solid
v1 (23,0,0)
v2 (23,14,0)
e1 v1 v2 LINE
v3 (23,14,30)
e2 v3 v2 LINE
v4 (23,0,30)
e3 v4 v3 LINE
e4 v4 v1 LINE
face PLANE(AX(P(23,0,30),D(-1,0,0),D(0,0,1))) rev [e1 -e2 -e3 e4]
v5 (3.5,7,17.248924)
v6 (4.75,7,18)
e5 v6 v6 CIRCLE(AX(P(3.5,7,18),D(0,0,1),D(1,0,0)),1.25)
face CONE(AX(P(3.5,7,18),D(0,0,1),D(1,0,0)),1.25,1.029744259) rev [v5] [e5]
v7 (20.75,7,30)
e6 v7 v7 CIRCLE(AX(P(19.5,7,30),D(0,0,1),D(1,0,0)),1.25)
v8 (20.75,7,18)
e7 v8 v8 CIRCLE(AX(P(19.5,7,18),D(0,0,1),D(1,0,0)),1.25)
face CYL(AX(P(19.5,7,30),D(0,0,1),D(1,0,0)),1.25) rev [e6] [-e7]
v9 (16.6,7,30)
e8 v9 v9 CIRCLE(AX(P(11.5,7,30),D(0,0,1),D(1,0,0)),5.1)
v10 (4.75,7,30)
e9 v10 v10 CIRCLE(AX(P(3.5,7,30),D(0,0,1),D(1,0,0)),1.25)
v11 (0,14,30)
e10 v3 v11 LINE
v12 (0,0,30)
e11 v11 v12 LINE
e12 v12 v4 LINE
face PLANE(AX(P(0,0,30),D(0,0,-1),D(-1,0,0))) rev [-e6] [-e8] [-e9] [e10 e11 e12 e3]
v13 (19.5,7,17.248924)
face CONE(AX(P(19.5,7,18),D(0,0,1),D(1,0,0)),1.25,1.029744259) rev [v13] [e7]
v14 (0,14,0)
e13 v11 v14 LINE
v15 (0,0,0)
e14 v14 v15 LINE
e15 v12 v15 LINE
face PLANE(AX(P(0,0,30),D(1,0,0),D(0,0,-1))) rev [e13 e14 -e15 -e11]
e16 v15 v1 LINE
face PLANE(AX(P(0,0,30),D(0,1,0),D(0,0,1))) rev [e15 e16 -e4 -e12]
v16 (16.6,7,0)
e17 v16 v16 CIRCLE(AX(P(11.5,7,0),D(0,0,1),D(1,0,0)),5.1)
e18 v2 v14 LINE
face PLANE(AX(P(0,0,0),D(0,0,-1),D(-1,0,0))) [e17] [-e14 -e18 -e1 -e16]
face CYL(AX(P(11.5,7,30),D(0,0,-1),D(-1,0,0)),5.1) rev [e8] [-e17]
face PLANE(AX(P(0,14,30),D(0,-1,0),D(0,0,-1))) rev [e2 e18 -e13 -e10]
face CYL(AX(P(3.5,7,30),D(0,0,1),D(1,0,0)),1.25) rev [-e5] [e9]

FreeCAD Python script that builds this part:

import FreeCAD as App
import Part
import Sketcher

V = App.Vector
Q = App.Units.Quantity


def add_polygon(sketch, points):
    """Adds a closed chain of lines whose ends are joined by coincident constraints."""
    first, n = sketch.GeometryCount, len(points)
    for a, b in zip(points, points[1:] + points[:1]):
        sketch.addGeometry(Part.LineSegment(App.Vector(*a, 0), App.Vector(*b, 0)), False)
    for i in range(n):
        sketch.addConstraint(Sketcher.Constraint("Coincident", first + i, 2, first + (i + 1) % n, 1))

doc = App.newDocument("Part")
body = doc.addObject("PartDesign::Body", "Body")

sketch1 = doc.addObject("Sketcher::SketchObject", "Sketch")
body.addObject(sketch1)
sketch1.AttachmentSupport = (doc.XY_Plane, [""])
sketch1.MapMode = "FlatFace"
add_polygon(sketch1, [(0, 14), (0, 0), (23, 0), (23, 14)])
sketch1.addGeometry(Part.Circle(V(12, 7, 0), V(0, 0, 1), 5), False)
sketch1.addConstraint([
    Sketcher.Constraint("Vertical", 0),
    Sketcher.Constraint("Horizontal", 1),
    Sketcher.Constraint("Vertical", 2),
    Sketcher.Constraint("Horizontal", 3),
    Sketcher.Constraint("Coincident", 0, 2, -1, 1),
    Sketcher.Constraint("Diameter", 4, Q("10.2 mm")),
    Sketcher.Constraint("DistanceX", 1, 1, 1, 2, Q("23 mm")),
    Sketcher.Constraint("DistanceY", 0, 2, 0, 1, Q("14 mm")),
    Sketcher.Constraint("DistanceY", -1, 1, 4, 3, Q("7 mm")),
    Sketcher.Constraint("DistanceX", -1, 1, 4, 3, Q("11.5 mm")),
])
pad1 = doc.addObject("PartDesign::Pad", "Pad")
body.addObject(pad1)
pad1.Profile = sketch1
pad1.Length = 30

sketch2 = doc.addObject("Sketcher::SketchObject", "Sketch001")
body.addObject(sketch2)
sketch2.AttachmentSupport = (doc.XY_Plane, [""])
sketch2.MapMode = "FlatFace"
sketch2.AttachmentOffset = App.Placement(V(0, 0, 30), App.Rotation())
sketch2.addGeometry([
    Part.Circle(V(3.5, 7, 0), V(0, 0, 1), 1.2),
    Part.Circle(V(19.5, 7, 0), V(0, 0, 1), 1.2),
], False)
sketch2.addConstraint([
    Sketcher.Constraint("Equal", 0, 1),
    Sketcher.Constraint("Horizontal", 0, 3, 1, 3),
    Sketcher.Constraint("Diameter", 0, Q("2.5 mm")),
    Sketcher.Constraint("DistanceY", -1, 1, 0, 3, Q("7 mm")),
    Sketcher.Constraint("DistanceX", 0, 3, 1, 3, Q("16 mm")),
    Sketcher.Constraint("DistanceX", -1, 1, 0, 3, Q("3.5 mm")),
])
doc.recompute()
hole = doc.addObject("PartDesign::Hole", "Hole")
body.addObject(hole)
hole.Profile = sketch2
hole.ThreadType = "None"
hole.Diameter = 2.5
hole.DepthType = "Dimension"
hole.Depth = 12
hole.DrillPoint = "Angled"
hole.DrillPointAngle = 118

doc.recompute()
